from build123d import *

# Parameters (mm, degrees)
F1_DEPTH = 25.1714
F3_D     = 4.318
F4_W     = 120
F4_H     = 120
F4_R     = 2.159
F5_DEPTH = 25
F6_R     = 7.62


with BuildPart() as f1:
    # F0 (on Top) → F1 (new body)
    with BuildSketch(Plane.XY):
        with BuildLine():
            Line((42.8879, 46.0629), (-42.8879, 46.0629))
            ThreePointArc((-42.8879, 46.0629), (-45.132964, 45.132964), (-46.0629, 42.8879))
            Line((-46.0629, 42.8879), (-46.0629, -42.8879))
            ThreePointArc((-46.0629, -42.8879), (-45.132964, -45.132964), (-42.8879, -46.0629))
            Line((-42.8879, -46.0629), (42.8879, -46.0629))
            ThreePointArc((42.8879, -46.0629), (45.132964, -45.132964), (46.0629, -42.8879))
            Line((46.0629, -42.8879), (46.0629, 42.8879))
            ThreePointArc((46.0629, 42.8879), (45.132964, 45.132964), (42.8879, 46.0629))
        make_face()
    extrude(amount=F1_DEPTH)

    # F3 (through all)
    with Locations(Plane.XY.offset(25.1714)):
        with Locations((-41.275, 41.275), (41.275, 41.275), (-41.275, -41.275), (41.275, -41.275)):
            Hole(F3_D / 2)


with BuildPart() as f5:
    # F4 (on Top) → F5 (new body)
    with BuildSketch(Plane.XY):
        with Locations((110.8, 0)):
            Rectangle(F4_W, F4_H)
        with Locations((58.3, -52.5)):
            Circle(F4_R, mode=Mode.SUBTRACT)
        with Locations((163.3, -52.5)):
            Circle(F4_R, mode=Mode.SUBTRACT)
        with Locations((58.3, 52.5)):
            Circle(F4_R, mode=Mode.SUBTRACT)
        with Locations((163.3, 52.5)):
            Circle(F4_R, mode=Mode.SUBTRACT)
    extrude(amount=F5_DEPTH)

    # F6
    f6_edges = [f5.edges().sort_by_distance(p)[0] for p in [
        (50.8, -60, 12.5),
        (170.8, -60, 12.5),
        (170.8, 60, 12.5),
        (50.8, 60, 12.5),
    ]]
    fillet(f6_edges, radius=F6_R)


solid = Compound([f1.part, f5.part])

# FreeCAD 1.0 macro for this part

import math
import FreeCAD as App
import Part
import Sketcher
Q = App.Units.Quantity


def edges_at(feature, points):
    """Names of the edges that pass closest to the given points."""
    edges = feature.Shape.Edges
    near = lambda p: min(range(len(edges)), key=lambda i: edges[i].distToShape(Part.Vertex(*p))[0])
    return sorted({f"Edge{near(p) + 1}" for p in points})

doc = App.newDocument("Part")
body = doc.addObject("PartDesign::Body", "Body")

sketch1 = body.newObject("Sketcher::SketchObject", "Sketch")
sketch1.AttachmentSupport = (doc.getObject("XY_Plane"), [""])
sketch1.MapMode = "FlatFace"
sketch1.addGeometry(Part.LineSegment(App.Vector(42.9, 46.1, 0), App.Vector(-42.9, 46.1, 0)), False)
sketch1.addGeometry(Part.ArcOfCircle(Part.Circle(App.Vector(-42.9, 42.9, 0), App.Vector(0, 0, 1), 3.2), math.radians(90), math.radians(180)), False)
sketch1.addGeometry(Part.LineSegment(App.Vector(-46.1, 42.9, 0), App.Vector(-46.1, -42.9, 0)), False)
sketch1.addGeometry(Part.ArcOfCircle(Part.Circle(App.Vector(-42.9, -42.9, 0), App.Vector(0, 0, 1), 3.2), math.radians(-180), math.radians(-90)), False)
sketch1.addGeometry(Part.LineSegment(App.Vector(-42.9, -46.1, 0), App.Vector(42.9, -46.1, 0)), False)
sketch1.addGeometry(Part.ArcOfCircle(Part.Circle(App.Vector(42.9, -42.9, 0), App.Vector(0, 0, 1), 3.2), math.radians(-90), math.radians(0)), False)
sketch1.addGeometry(Part.LineSegment(App.Vector(46.1, -42.9, 0), App.Vector(46.1, 42.9, 0)), False)
sketch1.addGeometry(Part.ArcOfCircle(Part.Circle(App.Vector(42.9, 42.9, 0), App.Vector(0, 0, 1), 3.2), math.radians(0), math.radians(90)), False)
sketch1.addConstraint(Sketcher.Constraint("Tangent", 0, 2, 1, 1))
sketch1.addConstraint(Sketcher.Constraint("Tangent", 1, 2, 2, 1))
sketch1.addConstraint(Sketcher.Constraint("Tangent", 2, 2, 3, 1))
sketch1.addConstraint(Sketcher.Constraint("Tangent", 3, 2, 4, 1))
sketch1.addConstraint(Sketcher.Constraint("Tangent", 4, 2, 5, 1))
sketch1.addConstraint(Sketcher.Constraint("Tangent", 5, 2, 6, 1))
sketch1.addConstraint(Sketcher.Constraint("Tangent", 6, 2, 7, 1))
sketch1.addConstraint(Sketcher.Constraint("Tangent", 7, 2, 0, 1))
sketch1.addConstraint(Sketcher.Constraint("Horizontal", 0))
sketch1.addConstraint(Sketcher.Constraint("Vertical", 2))
sketch1.addConstraint(Sketcher.Constraint("Horizontal", 4))
sketch1.addConstraint(Sketcher.Constraint("Vertical", 6))
sketch1.addConstraint(Sketcher.Constraint("Equal", 1, 3))
sketch1.addConstraint(Sketcher.Constraint("Equal", 3, 5))
sketch1.addConstraint(Sketcher.Constraint("Equal", 5, 7))
sketch1.addConstraint(Sketcher.Constraint("Symmetric", 1, 3, 5, 3, -1, 1))
sketch1.addConstraint(Sketcher.Constraint("Equal", 4, 2))
sketch1.addConstraint(Sketcher.Constraint("Radius", 1, Q("0.125 in")))
sketch1.addConstraint(Sketcher.Constraint("DistanceX", 0, 2, 0, 1, Q("3.377 in")))
pad1 = body.newObject("PartDesign::Pad", "Pad")
pad1.Profile = sketch1
pad1.Length = Q("0.991 in")

sketch2 = body.newObject("Sketcher::SketchObject", "Sketch001")
sketch2.AttachmentSupport = (doc.getObject("XY_Plane"), [""])
sketch2.MapMode = "FlatFace"
sketch2.AttachmentOffset = App.Placement(App.Vector(0, 0, 0.991 * 25.4), App.Rotation())
sketch2.addGeometry(Part.Circle(App.Vector(-41.3, 41.3, 0), App.Vector(0, 0, 1), 2.2), False)
sketch2.addGeometry(Part.Circle(App.Vector(41.3, 41.3, 0), App.Vector(0, 0, 1), 2.2), False)
sketch2.addGeometry(Part.Circle(App.Vector(-41.3, -41.3, 0), App.Vector(0, 0, 1), 2.2), False)
sketch2.addGeometry(Part.Circle(App.Vector(41.3, -41.3, 0), App.Vector(0, 0, 1), 2.2), False)
sketch2.addConstraint(Sketcher.Constraint("Equal", 0, 1))
sketch2.addConstraint(Sketcher.Constraint("Equal", 1, 2))
sketch2.addConstraint(Sketcher.Constraint("Equal", 2, 3))
sketch2.addConstraint(Sketcher.Constraint("Symmetric", 1, 3, 2, 3, -1, 1))
sketch2.addConstraint(Sketcher.Constraint("Symmetric", 0, 3, 3, 3, -1, 1))
sketch2.addConstraint(Sketcher.Constraint("Symmetric", 0, 3, 1, 3, -2))
sketch2.addConstraint(Sketcher.Constraint("Diameter", 0, Q("0.17 in")))
sketch2.addConstraint(Sketcher.Constraint("DistanceX", 0, 3, 1, 3, Q("3.25 in")))
sketch2.addConstraint(Sketcher.Constraint("DistanceY", 2, 3, 0, 3, Q("3.25 in")))
doc.recompute()
hole = body.newObject("PartDesign::Hole", "Hole")
hole.Profile = sketch2
hole.ThreadType = "None"
hole.Diameter = Q("0.17 in")
hole.DepthType = "ThroughAll"
body2 = doc.addObject("PartDesign::Body", "Body001")

sketch3 = body2.newObject("Sketcher::SketchObject", "Sketch002")
sketch3.AttachmentSupport = (doc.getObject("XY_Plane001"), [""])
sketch3.MapMode = "FlatFace"
sketch3.addGeometry(Part.LineSegment(App.Vector(50.8, 60, 0), App.Vector(50.8, -60, 0)), False)
sketch3.addGeometry(Part.LineSegment(App.Vector(50.8, -60, 0), App.Vector(170.8, -60, 0)), False)
sketch3.addGeometry(Part.LineSegment(App.Vector(170.8, -60, 0), App.Vector(170.8, 60, 0)), False)
sketch3.addGeometry(Part.LineSegment(App.Vector(170.8, 60, 0), App.Vector(50.8, 60, 0)), False)
sketch3.addGeometry(Part.Circle(App.Vector(58.3, -52.5, 0), App.Vector(0, 0, 1), 2.2), False)
sketch3.addGeometry(Part.Circle(App.Vector(163.3, -52.5, 0), App.Vector(0, 0, 1), 2.2), False)
sketch3.addGeometry(Part.Circle(App.Vector(58.3, 52.5, 0), App.Vector(0, 0, 1), 2.2), False)
sketch3.addGeometry(Part.Circle(App.Vector(163.3, 52.5, 0), App.Vector(0, 0, 1), 2.2), False)
sketch3.addConstraint(Sketcher.Constraint("Coincident", 0, 2, 1, 1))
sketch3.addConstraint(Sketcher.Constraint("Coincident", 1, 2, 2, 1))
sketch3.addConstraint(Sketcher.Constraint("Coincident", 2, 2, 3, 1))
sketch3.addConstraint(Sketcher.Constraint("Coincident", 3, 2, 0, 1))
sketch3.addConstraint(Sketcher.Constraint("Vertical", 0))
sketch3.addConstraint(Sketcher.Constraint("Horizontal", 1))
sketch3.addConstraint(Sketcher.Constraint("Vertical", 2))
sketch3.addConstraint(Sketcher.Constraint("Horizontal", 3))
sketch3.addConstraint(Sketcher.Constraint("Equal", 4, 5))
sketch3.addConstraint(Sketcher.Constraint("Equal", 5, 6))
sketch3.addConstraint(Sketcher.Constraint("Equal", 6, 7))
sketch3.addConstraint(Sketcher.Constraint("Symmetric", 4, 3, 6, 3, -1))
sketch3.addConstraint(Sketcher.Constraint("Symmetric", 5, 3, 7, 3, -1))
sketch3.addConstraint(Sketcher.Constraint("Horizontal", 4, 3, 5, 3))
sketch3.addConstraint(Sketcher.Constraint("Equal", 3, 0))
sketch3.addConstraint(Sketcher.Constraint("Diameter", 4, Q("0.17 in")))
sketch3.addConstraint(Sketcher.Constraint("DistanceX", -1, 1, 0, 2, Q("2 in")))
sketch3.addConstraint(Sketcher.Constraint("DistanceX", 1, 1, 1, 2, 120.0))
sketch3.addConstraint(Sketcher.Constraint("DistanceX", -1, 1, 4, 3, 58.3))
sketch3.addConstraint(Sketcher.Constraint("DistanceY", 4, 3, -1, 1, 52.5))
sketch3.addConstraint(Sketcher.Constraint("DistanceX", -1, 1, 5, 3, 163.3))
sketch3.addConstraint(Sketcher.Constraint("DistanceY", 0, 2, -1, 1, 60.0))
pad2 = body2.newObject("PartDesign::Pad", "Pad001")
pad2.Profile = sketch3
pad2.Length = 25
doc.recompute()

fillet = body2.newObject("PartDesign::Fillet", "Fillet")
fillet.Base = (pad2, edges_at(pad2, [
    (50.8, -60, 12.5),
    (170.8, -60, 12.5),
    (170.8, 60, 12.5),
    (50.8, 60, 12.5),
]))
fillet.Radius = Q("0.3 in")

doc.recompute()
